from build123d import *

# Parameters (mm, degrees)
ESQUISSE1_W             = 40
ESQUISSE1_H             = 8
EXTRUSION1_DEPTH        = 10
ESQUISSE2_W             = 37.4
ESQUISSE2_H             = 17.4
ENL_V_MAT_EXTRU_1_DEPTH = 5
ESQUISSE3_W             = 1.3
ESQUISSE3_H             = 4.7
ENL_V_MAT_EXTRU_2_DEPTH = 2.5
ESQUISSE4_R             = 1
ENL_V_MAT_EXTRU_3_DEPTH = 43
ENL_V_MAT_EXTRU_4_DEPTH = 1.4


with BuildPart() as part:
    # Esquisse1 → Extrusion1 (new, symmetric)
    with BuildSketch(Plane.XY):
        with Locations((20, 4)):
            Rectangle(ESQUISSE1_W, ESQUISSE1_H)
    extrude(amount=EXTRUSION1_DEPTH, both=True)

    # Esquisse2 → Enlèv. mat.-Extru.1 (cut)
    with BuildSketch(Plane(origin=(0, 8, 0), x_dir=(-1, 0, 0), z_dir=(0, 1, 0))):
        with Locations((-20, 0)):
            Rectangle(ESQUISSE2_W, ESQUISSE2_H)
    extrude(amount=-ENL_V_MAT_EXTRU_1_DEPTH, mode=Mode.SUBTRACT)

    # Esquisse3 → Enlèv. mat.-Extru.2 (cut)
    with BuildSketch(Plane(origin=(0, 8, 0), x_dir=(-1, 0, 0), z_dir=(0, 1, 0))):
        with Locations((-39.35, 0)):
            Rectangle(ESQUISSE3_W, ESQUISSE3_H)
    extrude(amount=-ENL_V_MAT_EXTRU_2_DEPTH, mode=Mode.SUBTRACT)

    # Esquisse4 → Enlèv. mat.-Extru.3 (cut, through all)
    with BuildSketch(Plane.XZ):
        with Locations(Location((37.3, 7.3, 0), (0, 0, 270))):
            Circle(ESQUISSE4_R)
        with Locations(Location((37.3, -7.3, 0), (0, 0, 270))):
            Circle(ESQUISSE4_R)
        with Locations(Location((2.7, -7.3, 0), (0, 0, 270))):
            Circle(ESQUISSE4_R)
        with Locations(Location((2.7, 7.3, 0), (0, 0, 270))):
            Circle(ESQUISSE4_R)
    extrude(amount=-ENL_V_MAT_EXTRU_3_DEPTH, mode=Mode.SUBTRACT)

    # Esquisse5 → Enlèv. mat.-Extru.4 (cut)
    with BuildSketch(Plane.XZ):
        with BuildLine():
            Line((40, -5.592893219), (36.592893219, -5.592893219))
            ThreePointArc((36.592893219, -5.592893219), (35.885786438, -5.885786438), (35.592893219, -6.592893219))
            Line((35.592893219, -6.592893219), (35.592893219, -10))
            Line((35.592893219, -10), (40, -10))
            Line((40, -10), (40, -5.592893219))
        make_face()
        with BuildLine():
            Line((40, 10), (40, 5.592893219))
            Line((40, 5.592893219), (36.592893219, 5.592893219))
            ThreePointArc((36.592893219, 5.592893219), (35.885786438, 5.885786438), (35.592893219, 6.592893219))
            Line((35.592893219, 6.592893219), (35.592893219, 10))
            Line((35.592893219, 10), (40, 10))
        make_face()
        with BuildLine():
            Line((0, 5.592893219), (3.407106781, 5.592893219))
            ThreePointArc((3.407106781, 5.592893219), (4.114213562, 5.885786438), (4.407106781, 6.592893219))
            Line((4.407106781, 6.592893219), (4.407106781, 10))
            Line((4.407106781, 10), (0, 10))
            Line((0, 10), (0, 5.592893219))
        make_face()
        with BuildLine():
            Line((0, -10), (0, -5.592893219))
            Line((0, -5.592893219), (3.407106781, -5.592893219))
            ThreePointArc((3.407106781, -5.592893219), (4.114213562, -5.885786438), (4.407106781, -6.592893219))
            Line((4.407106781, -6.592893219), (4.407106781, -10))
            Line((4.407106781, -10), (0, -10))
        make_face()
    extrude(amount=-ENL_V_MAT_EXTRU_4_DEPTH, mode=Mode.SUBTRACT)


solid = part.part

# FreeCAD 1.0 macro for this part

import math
import FreeCAD as App
import Part
import Sketcher
Q = App.Units.Quantity

doc = App.newDocument("Part")
params = doc.addObject("Spreadsheet::Sheet", "Params")
for row, (alias, value) in enumerate([
    ("sketch1_width", "40 mm"),
    ("sketch1_height", "8 mm"),
    ("pad1_length", "20 mm"),
    ("sketch2_width", "37.4 mm"),
    ("sketch2_height", "17.4 mm"),
    ("pocket1_length", "5 mm"),
    ("sketch3_width", "1.3 mm"),
    ("sketch3_height", "4.7 mm"),
    ("pocket2_length", "2.5 mm"),
    ("sketch4_diameter", "2 mm"),
    ("sketch5_radius", "1 mm"),
    ("pocket4_length", "1.4 mm"),
], start=1):
    params.set(f"A{row}", alias)
    params.set(f"B{row}", "=" + value)
    params.setAlias(f"B{row}", alias)

body = doc.addObject("PartDesign::Body", "Body")

sketch1 = body.newObject("Sketcher::SketchObject", "Sketch")
sketch1.AttachmentSupport = (doc.getObject("XY_Plane"), [""])
sketch1.MapMode = "FlatFace"
sketch1.addGeometry(Part.LineSegment(App.Vector(0, 8, 0), App.Vector(0, 0, 0)), False)
sketch1.addGeometry(Part.LineSegment(App.Vector(0, 0, 0), App.Vector(40, 0, 0)), False)
sketch1.addGeometry(Part.LineSegment(App.Vector(40, 0, 0), App.Vector(40, 8, 0)), False)
sketch1.addGeometry(Part.LineSegment(App.Vector(40, 8, 0), App.Vector(0, 8, 0)), False)
sketch1.addConstraint(Sketcher.Constraint("Coincident", 0, 2, 1, 1))
sketch1.addConstraint(Sketcher.Constraint("Coincident", 1, 2, 2, 1))
sketch1.addConstraint(Sketcher.Constraint("Coincident", 2, 2, 3, 1))
sketch1.addConstraint(Sketcher.Constraint("Coincident", 3, 2, 0, 1))
sketch1.addConstraint(Sketcher.Constraint("Vertical", 0))
sketch1.addConstraint(Sketcher.Constraint("Horizontal", 1))
sketch1.addConstraint(Sketcher.Constraint("Vertical", 2))
sketch1.addConstraint(Sketcher.Constraint("Horizontal", 3))
sketch1.addConstraint(Sketcher.Constraint("Coincident", 0, 2, -1, 1))
sketch1.addConstraint(Sketcher.Constraint("DistanceX", 1, 1, 1, 2, Q("40 mm")))
sketch1.addConstraint(Sketcher.Constraint("DistanceY", 0, 2, 0, 1, Q("8 mm")))
sketch1.setExpression("Constraints[9]", "Params.sketch1_width")
sketch1.setExpression("Constraints[10]", "Params.sketch1_height")
pad1 = body.newObject("PartDesign::Pad", "Pad")
pad1.Profile = sketch1
pad1.setExpression("Length", "Params.pad1_length")
pad1.Midplane = True

sketch2 = body.newObject("Sketcher::SketchObject", "Sketch001")
sketch2.AttachmentSupport = (doc.getObject("XZ_Plane"), [""])
sketch2.MapMode = "FlatFace"
sketch2.AttachmentOffset = App.Placement(App.Vector(0, 0, -8), App.Rotation())
sketch2.addGeometry(Part.LineSegment(App.Vector(39, 9, 0), App.Vector(39, -9, 0)), False)
sketch2.addGeometry(Part.LineSegment(App.Vector(39, -9, 0), App.Vector(1, -9, 0)), False)
sketch2.addGeometry(Part.LineSegment(App.Vector(1, -9, 0), App.Vector(1, 9, 0)), False)
sketch2.addGeometry(Part.LineSegment(App.Vector(1, 9, 0), App.Vector(39, 9, 0)), False)
sketch2.addConstraint(Sketcher.Constraint("Coincident", 0, 2, 1, 1))
sketch2.addConstraint(Sketcher.Constraint("Coincident", 1, 2, 2, 1))
sketch2.addConstraint(Sketcher.Constraint("Coincident", 2, 2, 3, 1))
sketch2.addConstraint(Sketcher.Constraint("Coincident", 3, 2, 0, 1))
sketch2.addConstraint(Sketcher.Constraint("Vertical", 0))
sketch2.addConstraint(Sketcher.Constraint("Horizontal", 1))
sketch2.addConstraint(Sketcher.Constraint("Vertical", 2))
sketch2.addConstraint(Sketcher.Constraint("Horizontal", 3))
sketch2.addConstraint(Sketcher.Constraint("DistanceX", 1, 2, 1, 1, Q("37.4 mm")))
sketch2.addConstraint(Sketcher.Constraint("DistanceY", 0, 2, 0, 1, Q("17.4 mm")))
sketch2.addConstraint(Sketcher.Constraint("DistanceX", -1, 1, 0, 2, Q("38.7 mm")))
sketch2.addConstraint(Sketcher.Constraint("DistanceY", 0, 2, -1, 1, Q("8.7 mm")))
sketch2.setExpression("Constraints[8]", "Params.sketch2_width")
sketch2.setExpression("Constraints[9]", "Params.sketch2_height")
pocket1 = body.newObject("PartDesign::Pocket", "Pocket")
pocket1.Profile = sketch2
pocket1.setExpression("Length", "Params.pocket1_length")
pocket1.Reversed = True

sketch3 = body.newObject("Sketcher::SketchObject", "Sketch002")
sketch3.AttachmentSupport = (doc.getObject("XZ_Plane"), [""])
sketch3.MapMode = "FlatFace"
sketch3.AttachmentOffset = App.Placement(App.Vector(0, 0, -8), App.Rotation())
sketch3.addGeometry(Part.LineSegment(App.Vector(40, 2.4, 0), App.Vector(40, -2.4, 0)), False)
sketch3.addGeometry(Part.LineSegment(App.Vector(40, -2.4, 0), App.Vector(38.7, -2.4, 0)), False)
sketch3.addGeometry(Part.LineSegment(App.Vector(38.7, -2.4, 0), App.Vector(38.7, 2.4, 0)), False)
sketch3.addGeometry(Part.LineSegment(App.Vector(38.7, 2.4, 0), App.Vector(40, 2.4, 0)), False)
sketch3.addConstraint(Sketcher.Constraint("Coincident", 0, 2, 1, 1))
sketch3.addConstraint(Sketcher.Constraint("Coincident", 1, 2, 2, 1))
sketch3.addConstraint(Sketcher.Constraint("Coincident", 2, 2, 3, 1))
sketch3.addConstraint(Sketcher.Constraint("Coincident", 3, 2, 0, 1))
sketch3.addConstraint(Sketcher.Constraint("Vertical", 0))
sketch3.addConstraint(Sketcher.Constraint("Horizontal", 1))
sketch3.addConstraint(Sketcher.Constraint("Vertical", 2))
sketch3.addConstraint(Sketcher.Constraint("Horizontal", 3))
sketch3.addConstraint(Sketcher.Constraint("DistanceX", 1, 2, 1, 1, Q("1.3 mm")))
sketch3.addConstraint(Sketcher.Constraint("DistanceY", 0, 2, 0, 1, Q("4.7 mm")))
sketch3.addConstraint(Sketcher.Constraint("DistanceX", -1, 1, 0, 2, Q("40 mm")))
sketch3.addConstraint(Sketcher.Constraint("DistanceY", 0, 2, -1, 1, Q("2.35 mm")))
sketch3.setExpression("Constraints[8]", "Params.sketch3_width")
sketch3.setExpression("Constraints[9]", "Params.sketch3_height")
pocket2 = body.newObject("PartDesign::Pocket", "Pocket001")
pocket2.Profile = sketch3
pocket2.setExpression("Length", "Params.pocket2_length")
pocket2.Reversed = True

sketch4 = body.newObject("Sketcher::SketchObject", "Sketch003")
sketch4.AttachmentSupport = (doc.getObject("XZ_Plane"), [""])
sketch4.MapMode = "FlatFace"
sketch4.addGeometry(Part.Circle(App.Vector(37.3, 7.3, 0), App.Vector(0, 0, 1), 1), False)
sketch4.addGeometry(Part.Circle(App.Vector(37.3, -7.3, 0), App.Vector(0, 0, 1), 1), False)
sketch4.addGeometry(Part.Circle(App.Vector(2.7, -7.3, 0), App.Vector(0, 0, 1), 1), False)
sketch4.addGeometry(Part.Circle(App.Vector(2.7, 7.3, 0), App.Vector(0, 0, 1), 1), False)
sketch4.addConstraint(Sketcher.Constraint("Equal", 0, 1))
sketch4.addConstraint(Sketcher.Constraint("Equal", 1, 2))
sketch4.addConstraint(Sketcher.Constraint("Equal", 2, 3))
sketch4.addConstraint(Sketcher.Constraint("Symmetric", 0, 3, 1, 3, -1))
sketch4.addConstraint(Sketcher.Constraint("Symmetric", 2, 3, 3, 3, -1))
sketch4.addConstraint(Sketcher.Constraint("Horizontal", 1, 3, 2, 3))
sketch4.addConstraint(Sketcher.Constraint("Diameter", 0, Q("2 mm")))
sketch4.addConstraint(Sketcher.Constraint("DistanceX", -1, 1, 0, 3, Q("37.3 mm")))
sketch4.addConstraint(Sketcher.Constraint("DistanceY", -1, 1, 0, 3, Q("7.3 mm")))
sketch4.addConstraint(Sketcher.Constraint("DistanceX", -1, 1, 2, 3, Q("2.7 mm")))
sketch4.setExpression("Constraints[6]", "Params.sketch4_diameter")
pocket3 = body.newObject("PartDesign::Pocket", "Pocket002")
pocket3.Profile = sketch4
pocket3.Type = "ThroughAll"

sketch5 = body.newObject("Sketcher::SketchObject", "Sketch004")
sketch5.AttachmentSupport = (doc.getObject("XZ_Plane"), [""])
sketch5.MapMode = "FlatFace"
sketch5.addGeometry(Part.LineSegment(App.Vector(40, -5.6, 0), App.Vector(36.6, -5.6, 0)), False)
sketch5.addGeometry(Part.ArcOfCircle(Part.Circle(App.Vector(36.6, -6.6, 0), App.Vector(0, 0, 1), 1), math.radians(90), math.radians(180)), False)
sketch5.addGeometry(Part.LineSegment(App.Vector(35.6, -6.6, 0), App.Vector(35.6, -10, 0)), False)
sketch5.addGeometry(Part.LineSegment(App.Vector(35.6, -10, 0), App.Vector(40, -10, 0)), False)
sketch5.addGeometry(Part.LineSegment(App.Vector(40, -10, 0), App.Vector(40, -5.6, 0)), False)
sketch5.addGeometry(Part.LineSegment(App.Vector(40, 5.6, 0), App.Vector(40, 10, 0)), False)
sketch5.addGeometry(Part.LineSegment(App.Vector(40, 10, 0), App.Vector(35.6, 10, 0)), False)
sketch5.addGeometry(Part.LineSegment(App.Vector(35.6, 10, 0), App.Vector(35.6, 6.6, 0)), False)
sketch5.addGeometry(Part.ArcOfCircle(Part.Circle(App.Vector(36.6, 6.6, 0), App.Vector(0, 0, 1), 1), math.radians(-180), math.radians(-90)), False)
sketch5.addGeometry(Part.LineSegment(App.Vector(36.6, 5.6, 0), App.Vector(40, 5.6, 0)), False)
sketch5.addGeometry(Part.LineSegment(App.Vector(0, 5.6, 0), App.Vector(3.4, 5.6, 0)), False)
sketch5.addGeometry(Part.ArcOfCircle(Part.Circle(App.Vector(3.4, 6.6, 0), App.Vector(0, 0, 1), 1), math.radians(-90), math.radians(0)), False)
sketch5.addGeometry(Part.LineSegment(App.Vector(4.4, 6.6, 0), App.Vector(4.4, 10, 0)), False)
sketch5.addGeometry(Part.LineSegment(App.Vector(4.4, 10, 0), App.Vector(0, 10, 0)), False)
sketch5.addGeometry(Part.LineSegment(App.Vector(0, 10, 0), App.Vector(0, 5.6, 0)), False)
sketch5.addGeometry(Part.LineSegment(App.Vector(0, -5.6, 0), App.Vector(0, -10, 0)), False)
sketch5.addGeometry(Part.LineSegment(App.Vector(0, -10, 0), App.Vector(4.4, -10, 0)), False)
sketch5.addGeometry(Part.LineSegment(App.Vector(4.4, -10, 0), App.Vector(4.4, -6.6, 0)), False)
sketch5.addGeometry(Part.ArcOfCircle(Part.Circle(App.Vector(3.4, -6.6, 0), App.Vector(0, 0, 1), 1), math.radians(0), math.radians(90)), False)
sketch5.addGeometry(Part.LineSegment(App.Vector(3.4, -5.6, 0), App.Vector(0, -5.6, 0)), False)
sketch5.addConstraint(Sketcher.Constraint("Tangent", 0, 2, 1, 1))
sketch5.addConstraint(Sketcher.Constraint("Tangent", 1, 2, 2, 1))
sketch5.addConstraint(Sketcher.Constraint("Coincident", 2, 2, 3, 1))
sketch5.addConstraint(Sketcher.Constraint("Coincident", 3, 2, 4, 1))
sketch5.addConstraint(Sketcher.Constraint("Coincident", 4, 2, 0, 1))
sketch5.addConstraint(Sketcher.Constraint("Coincident", 5, 2, 6, 1))
sketch5.addConstraint(Sketcher.Constraint("Coincident", 6, 2, 7, 1))
sketch5.addConstraint(Sketcher.Constraint("Tangent", 7, 2, 8, 1))
sketch5.addConstraint(Sketcher.Constraint("Tangent", 8, 2, 9, 1))
sketch5.addConstraint(Sketcher.Constraint("Coincident", 9, 2, 5, 1))
sketch5.addConstraint(Sketcher.Constraint("Tangent", 10, 2, 11, 1))
sketch5.addConstraint(Sketcher.Constraint("Tangent", 11, 2, 12, 1))
sketch5.addConstraint(Sketcher.Constraint("Coincident", 12, 2, 13, 1))
sketch5.addConstraint(Sketcher.Constraint("Coincident", 13, 2, 14, 1))
sketch5.addConstraint(Sketcher.Constraint("Coincident", 14, 2, 10, 1))
sketch5.addConstraint(Sketcher.Constraint("Coincident", 15, 2, 16, 1))
sketch5.addConstraint(Sketcher.Constraint("Coincident", 16, 2, 17, 1))
sketch5.addConstraint(Sketcher.Constraint("Tangent", 17, 2, 18, 1))
sketch5.addConstraint(Sketcher.Constraint("Tangent", 18, 2, 19, 1))
sketch5.addConstraint(Sketcher.Constraint("Coincident", 19, 2, 15, 1))
sketch5.addConstraint(Sketcher.Constraint("Horizontal", 0))
sketch5.addConstraint(Sketcher.Constraint("Vertical", 2))
sketch5.addConstraint(Sketcher.Constraint("Horizontal", 3))
sketch5.addConstraint(Sketcher.Constraint("Vertical", 4))
sketch5.addConstraint(Sketcher.Constraint("Vertical", 5))
sketch5.addConstraint(Sketcher.Constraint("Horizontal", 6))
sketch5.addConstraint(Sketcher.Constraint("Vertical", 7))
sketch5.addConstraint(Sketcher.Constraint("Horizontal", 9))
sketch5.addConstraint(Sketcher.Constraint("Horizontal", 10))
sketch5.addConstraint(Sketcher.Constraint("Vertical", 12))
sketch5.addConstraint(Sketcher.Constraint("Horizontal", 13))
sketch5.addConstraint(Sketcher.Constraint("Vertical", 14))
sketch5.addConstraint(Sketcher.Constraint("Vertical", 15))
sketch5.addConstraint(Sketcher.Constraint("Horizontal", 16))
sketch5.addConstraint(Sketcher.Constraint("Vertical", 17))
sketch5.addConstraint(Sketcher.Constraint("Horizontal", 19))
sketch5.addConstraint(Sketcher.Constraint("Equal", 1, 8))
sketch5.addConstraint(Sketcher.Constraint("Equal", 8, 11))
sketch5.addConstraint(Sketcher.Constraint("Equal", 11, 18))
sketch5.addConstraint(Sketcher.Constraint("Symmetric", 13, 2, 15, 2, -1, 1))
sketch5.addConstraint(Sketcher.Constraint("Symmetric", 1, 3, 8, 3, -1))
sketch5.addConstraint(Sketcher.Constraint("Symmetric", 11, 3, 18, 3, -1))
sketch5.addConstraint(Sketcher.Constraint("Symmetric", 3, 2, 5, 2, -1))
sketch5.addConstraint(Sketcher.Constraint("PointOnObject", 13, 2, -2))
sketch5.addConstraint(Sketcher.Constraint("Horizontal", 8, 3, 11, 3))
sketch5.addConstraint(Sketcher.Constraint("Horizontal", 6, 2, 12, 2))
sketch5.addConstraint(Sketcher.Constraint("Equal", 9, 10))
sketch5.addConstraint(Sketcher.Constraint("Equal", 19, 2))
sketch5.addConstraint(Sketcher.Constraint("Radius", 1, Q("1 mm")))
sketch5.addConstraint(Sketcher.Constraint("DistanceY", 2, 2, -1, 1, Q("10 mm")))
sketch5.addConstraint(Sketcher.Constraint("DistanceX", -1, 1, 3, 2, Q("40 mm")))
sketch5.addConstraint(Sketcher.Constraint("DistanceX", 0, 2, 0, 1, Q("3.407107 mm")))
sketch5.setExpression("Constraints[48]", "Params.sketch5_radius")
pocket4 = body.newObject("PartDesign::Pocket", "Pocket003")
pocket4.Profile = sketch5
pocket4.setExpression("Length", "Params.pocket4_length")

doc.recompute()
